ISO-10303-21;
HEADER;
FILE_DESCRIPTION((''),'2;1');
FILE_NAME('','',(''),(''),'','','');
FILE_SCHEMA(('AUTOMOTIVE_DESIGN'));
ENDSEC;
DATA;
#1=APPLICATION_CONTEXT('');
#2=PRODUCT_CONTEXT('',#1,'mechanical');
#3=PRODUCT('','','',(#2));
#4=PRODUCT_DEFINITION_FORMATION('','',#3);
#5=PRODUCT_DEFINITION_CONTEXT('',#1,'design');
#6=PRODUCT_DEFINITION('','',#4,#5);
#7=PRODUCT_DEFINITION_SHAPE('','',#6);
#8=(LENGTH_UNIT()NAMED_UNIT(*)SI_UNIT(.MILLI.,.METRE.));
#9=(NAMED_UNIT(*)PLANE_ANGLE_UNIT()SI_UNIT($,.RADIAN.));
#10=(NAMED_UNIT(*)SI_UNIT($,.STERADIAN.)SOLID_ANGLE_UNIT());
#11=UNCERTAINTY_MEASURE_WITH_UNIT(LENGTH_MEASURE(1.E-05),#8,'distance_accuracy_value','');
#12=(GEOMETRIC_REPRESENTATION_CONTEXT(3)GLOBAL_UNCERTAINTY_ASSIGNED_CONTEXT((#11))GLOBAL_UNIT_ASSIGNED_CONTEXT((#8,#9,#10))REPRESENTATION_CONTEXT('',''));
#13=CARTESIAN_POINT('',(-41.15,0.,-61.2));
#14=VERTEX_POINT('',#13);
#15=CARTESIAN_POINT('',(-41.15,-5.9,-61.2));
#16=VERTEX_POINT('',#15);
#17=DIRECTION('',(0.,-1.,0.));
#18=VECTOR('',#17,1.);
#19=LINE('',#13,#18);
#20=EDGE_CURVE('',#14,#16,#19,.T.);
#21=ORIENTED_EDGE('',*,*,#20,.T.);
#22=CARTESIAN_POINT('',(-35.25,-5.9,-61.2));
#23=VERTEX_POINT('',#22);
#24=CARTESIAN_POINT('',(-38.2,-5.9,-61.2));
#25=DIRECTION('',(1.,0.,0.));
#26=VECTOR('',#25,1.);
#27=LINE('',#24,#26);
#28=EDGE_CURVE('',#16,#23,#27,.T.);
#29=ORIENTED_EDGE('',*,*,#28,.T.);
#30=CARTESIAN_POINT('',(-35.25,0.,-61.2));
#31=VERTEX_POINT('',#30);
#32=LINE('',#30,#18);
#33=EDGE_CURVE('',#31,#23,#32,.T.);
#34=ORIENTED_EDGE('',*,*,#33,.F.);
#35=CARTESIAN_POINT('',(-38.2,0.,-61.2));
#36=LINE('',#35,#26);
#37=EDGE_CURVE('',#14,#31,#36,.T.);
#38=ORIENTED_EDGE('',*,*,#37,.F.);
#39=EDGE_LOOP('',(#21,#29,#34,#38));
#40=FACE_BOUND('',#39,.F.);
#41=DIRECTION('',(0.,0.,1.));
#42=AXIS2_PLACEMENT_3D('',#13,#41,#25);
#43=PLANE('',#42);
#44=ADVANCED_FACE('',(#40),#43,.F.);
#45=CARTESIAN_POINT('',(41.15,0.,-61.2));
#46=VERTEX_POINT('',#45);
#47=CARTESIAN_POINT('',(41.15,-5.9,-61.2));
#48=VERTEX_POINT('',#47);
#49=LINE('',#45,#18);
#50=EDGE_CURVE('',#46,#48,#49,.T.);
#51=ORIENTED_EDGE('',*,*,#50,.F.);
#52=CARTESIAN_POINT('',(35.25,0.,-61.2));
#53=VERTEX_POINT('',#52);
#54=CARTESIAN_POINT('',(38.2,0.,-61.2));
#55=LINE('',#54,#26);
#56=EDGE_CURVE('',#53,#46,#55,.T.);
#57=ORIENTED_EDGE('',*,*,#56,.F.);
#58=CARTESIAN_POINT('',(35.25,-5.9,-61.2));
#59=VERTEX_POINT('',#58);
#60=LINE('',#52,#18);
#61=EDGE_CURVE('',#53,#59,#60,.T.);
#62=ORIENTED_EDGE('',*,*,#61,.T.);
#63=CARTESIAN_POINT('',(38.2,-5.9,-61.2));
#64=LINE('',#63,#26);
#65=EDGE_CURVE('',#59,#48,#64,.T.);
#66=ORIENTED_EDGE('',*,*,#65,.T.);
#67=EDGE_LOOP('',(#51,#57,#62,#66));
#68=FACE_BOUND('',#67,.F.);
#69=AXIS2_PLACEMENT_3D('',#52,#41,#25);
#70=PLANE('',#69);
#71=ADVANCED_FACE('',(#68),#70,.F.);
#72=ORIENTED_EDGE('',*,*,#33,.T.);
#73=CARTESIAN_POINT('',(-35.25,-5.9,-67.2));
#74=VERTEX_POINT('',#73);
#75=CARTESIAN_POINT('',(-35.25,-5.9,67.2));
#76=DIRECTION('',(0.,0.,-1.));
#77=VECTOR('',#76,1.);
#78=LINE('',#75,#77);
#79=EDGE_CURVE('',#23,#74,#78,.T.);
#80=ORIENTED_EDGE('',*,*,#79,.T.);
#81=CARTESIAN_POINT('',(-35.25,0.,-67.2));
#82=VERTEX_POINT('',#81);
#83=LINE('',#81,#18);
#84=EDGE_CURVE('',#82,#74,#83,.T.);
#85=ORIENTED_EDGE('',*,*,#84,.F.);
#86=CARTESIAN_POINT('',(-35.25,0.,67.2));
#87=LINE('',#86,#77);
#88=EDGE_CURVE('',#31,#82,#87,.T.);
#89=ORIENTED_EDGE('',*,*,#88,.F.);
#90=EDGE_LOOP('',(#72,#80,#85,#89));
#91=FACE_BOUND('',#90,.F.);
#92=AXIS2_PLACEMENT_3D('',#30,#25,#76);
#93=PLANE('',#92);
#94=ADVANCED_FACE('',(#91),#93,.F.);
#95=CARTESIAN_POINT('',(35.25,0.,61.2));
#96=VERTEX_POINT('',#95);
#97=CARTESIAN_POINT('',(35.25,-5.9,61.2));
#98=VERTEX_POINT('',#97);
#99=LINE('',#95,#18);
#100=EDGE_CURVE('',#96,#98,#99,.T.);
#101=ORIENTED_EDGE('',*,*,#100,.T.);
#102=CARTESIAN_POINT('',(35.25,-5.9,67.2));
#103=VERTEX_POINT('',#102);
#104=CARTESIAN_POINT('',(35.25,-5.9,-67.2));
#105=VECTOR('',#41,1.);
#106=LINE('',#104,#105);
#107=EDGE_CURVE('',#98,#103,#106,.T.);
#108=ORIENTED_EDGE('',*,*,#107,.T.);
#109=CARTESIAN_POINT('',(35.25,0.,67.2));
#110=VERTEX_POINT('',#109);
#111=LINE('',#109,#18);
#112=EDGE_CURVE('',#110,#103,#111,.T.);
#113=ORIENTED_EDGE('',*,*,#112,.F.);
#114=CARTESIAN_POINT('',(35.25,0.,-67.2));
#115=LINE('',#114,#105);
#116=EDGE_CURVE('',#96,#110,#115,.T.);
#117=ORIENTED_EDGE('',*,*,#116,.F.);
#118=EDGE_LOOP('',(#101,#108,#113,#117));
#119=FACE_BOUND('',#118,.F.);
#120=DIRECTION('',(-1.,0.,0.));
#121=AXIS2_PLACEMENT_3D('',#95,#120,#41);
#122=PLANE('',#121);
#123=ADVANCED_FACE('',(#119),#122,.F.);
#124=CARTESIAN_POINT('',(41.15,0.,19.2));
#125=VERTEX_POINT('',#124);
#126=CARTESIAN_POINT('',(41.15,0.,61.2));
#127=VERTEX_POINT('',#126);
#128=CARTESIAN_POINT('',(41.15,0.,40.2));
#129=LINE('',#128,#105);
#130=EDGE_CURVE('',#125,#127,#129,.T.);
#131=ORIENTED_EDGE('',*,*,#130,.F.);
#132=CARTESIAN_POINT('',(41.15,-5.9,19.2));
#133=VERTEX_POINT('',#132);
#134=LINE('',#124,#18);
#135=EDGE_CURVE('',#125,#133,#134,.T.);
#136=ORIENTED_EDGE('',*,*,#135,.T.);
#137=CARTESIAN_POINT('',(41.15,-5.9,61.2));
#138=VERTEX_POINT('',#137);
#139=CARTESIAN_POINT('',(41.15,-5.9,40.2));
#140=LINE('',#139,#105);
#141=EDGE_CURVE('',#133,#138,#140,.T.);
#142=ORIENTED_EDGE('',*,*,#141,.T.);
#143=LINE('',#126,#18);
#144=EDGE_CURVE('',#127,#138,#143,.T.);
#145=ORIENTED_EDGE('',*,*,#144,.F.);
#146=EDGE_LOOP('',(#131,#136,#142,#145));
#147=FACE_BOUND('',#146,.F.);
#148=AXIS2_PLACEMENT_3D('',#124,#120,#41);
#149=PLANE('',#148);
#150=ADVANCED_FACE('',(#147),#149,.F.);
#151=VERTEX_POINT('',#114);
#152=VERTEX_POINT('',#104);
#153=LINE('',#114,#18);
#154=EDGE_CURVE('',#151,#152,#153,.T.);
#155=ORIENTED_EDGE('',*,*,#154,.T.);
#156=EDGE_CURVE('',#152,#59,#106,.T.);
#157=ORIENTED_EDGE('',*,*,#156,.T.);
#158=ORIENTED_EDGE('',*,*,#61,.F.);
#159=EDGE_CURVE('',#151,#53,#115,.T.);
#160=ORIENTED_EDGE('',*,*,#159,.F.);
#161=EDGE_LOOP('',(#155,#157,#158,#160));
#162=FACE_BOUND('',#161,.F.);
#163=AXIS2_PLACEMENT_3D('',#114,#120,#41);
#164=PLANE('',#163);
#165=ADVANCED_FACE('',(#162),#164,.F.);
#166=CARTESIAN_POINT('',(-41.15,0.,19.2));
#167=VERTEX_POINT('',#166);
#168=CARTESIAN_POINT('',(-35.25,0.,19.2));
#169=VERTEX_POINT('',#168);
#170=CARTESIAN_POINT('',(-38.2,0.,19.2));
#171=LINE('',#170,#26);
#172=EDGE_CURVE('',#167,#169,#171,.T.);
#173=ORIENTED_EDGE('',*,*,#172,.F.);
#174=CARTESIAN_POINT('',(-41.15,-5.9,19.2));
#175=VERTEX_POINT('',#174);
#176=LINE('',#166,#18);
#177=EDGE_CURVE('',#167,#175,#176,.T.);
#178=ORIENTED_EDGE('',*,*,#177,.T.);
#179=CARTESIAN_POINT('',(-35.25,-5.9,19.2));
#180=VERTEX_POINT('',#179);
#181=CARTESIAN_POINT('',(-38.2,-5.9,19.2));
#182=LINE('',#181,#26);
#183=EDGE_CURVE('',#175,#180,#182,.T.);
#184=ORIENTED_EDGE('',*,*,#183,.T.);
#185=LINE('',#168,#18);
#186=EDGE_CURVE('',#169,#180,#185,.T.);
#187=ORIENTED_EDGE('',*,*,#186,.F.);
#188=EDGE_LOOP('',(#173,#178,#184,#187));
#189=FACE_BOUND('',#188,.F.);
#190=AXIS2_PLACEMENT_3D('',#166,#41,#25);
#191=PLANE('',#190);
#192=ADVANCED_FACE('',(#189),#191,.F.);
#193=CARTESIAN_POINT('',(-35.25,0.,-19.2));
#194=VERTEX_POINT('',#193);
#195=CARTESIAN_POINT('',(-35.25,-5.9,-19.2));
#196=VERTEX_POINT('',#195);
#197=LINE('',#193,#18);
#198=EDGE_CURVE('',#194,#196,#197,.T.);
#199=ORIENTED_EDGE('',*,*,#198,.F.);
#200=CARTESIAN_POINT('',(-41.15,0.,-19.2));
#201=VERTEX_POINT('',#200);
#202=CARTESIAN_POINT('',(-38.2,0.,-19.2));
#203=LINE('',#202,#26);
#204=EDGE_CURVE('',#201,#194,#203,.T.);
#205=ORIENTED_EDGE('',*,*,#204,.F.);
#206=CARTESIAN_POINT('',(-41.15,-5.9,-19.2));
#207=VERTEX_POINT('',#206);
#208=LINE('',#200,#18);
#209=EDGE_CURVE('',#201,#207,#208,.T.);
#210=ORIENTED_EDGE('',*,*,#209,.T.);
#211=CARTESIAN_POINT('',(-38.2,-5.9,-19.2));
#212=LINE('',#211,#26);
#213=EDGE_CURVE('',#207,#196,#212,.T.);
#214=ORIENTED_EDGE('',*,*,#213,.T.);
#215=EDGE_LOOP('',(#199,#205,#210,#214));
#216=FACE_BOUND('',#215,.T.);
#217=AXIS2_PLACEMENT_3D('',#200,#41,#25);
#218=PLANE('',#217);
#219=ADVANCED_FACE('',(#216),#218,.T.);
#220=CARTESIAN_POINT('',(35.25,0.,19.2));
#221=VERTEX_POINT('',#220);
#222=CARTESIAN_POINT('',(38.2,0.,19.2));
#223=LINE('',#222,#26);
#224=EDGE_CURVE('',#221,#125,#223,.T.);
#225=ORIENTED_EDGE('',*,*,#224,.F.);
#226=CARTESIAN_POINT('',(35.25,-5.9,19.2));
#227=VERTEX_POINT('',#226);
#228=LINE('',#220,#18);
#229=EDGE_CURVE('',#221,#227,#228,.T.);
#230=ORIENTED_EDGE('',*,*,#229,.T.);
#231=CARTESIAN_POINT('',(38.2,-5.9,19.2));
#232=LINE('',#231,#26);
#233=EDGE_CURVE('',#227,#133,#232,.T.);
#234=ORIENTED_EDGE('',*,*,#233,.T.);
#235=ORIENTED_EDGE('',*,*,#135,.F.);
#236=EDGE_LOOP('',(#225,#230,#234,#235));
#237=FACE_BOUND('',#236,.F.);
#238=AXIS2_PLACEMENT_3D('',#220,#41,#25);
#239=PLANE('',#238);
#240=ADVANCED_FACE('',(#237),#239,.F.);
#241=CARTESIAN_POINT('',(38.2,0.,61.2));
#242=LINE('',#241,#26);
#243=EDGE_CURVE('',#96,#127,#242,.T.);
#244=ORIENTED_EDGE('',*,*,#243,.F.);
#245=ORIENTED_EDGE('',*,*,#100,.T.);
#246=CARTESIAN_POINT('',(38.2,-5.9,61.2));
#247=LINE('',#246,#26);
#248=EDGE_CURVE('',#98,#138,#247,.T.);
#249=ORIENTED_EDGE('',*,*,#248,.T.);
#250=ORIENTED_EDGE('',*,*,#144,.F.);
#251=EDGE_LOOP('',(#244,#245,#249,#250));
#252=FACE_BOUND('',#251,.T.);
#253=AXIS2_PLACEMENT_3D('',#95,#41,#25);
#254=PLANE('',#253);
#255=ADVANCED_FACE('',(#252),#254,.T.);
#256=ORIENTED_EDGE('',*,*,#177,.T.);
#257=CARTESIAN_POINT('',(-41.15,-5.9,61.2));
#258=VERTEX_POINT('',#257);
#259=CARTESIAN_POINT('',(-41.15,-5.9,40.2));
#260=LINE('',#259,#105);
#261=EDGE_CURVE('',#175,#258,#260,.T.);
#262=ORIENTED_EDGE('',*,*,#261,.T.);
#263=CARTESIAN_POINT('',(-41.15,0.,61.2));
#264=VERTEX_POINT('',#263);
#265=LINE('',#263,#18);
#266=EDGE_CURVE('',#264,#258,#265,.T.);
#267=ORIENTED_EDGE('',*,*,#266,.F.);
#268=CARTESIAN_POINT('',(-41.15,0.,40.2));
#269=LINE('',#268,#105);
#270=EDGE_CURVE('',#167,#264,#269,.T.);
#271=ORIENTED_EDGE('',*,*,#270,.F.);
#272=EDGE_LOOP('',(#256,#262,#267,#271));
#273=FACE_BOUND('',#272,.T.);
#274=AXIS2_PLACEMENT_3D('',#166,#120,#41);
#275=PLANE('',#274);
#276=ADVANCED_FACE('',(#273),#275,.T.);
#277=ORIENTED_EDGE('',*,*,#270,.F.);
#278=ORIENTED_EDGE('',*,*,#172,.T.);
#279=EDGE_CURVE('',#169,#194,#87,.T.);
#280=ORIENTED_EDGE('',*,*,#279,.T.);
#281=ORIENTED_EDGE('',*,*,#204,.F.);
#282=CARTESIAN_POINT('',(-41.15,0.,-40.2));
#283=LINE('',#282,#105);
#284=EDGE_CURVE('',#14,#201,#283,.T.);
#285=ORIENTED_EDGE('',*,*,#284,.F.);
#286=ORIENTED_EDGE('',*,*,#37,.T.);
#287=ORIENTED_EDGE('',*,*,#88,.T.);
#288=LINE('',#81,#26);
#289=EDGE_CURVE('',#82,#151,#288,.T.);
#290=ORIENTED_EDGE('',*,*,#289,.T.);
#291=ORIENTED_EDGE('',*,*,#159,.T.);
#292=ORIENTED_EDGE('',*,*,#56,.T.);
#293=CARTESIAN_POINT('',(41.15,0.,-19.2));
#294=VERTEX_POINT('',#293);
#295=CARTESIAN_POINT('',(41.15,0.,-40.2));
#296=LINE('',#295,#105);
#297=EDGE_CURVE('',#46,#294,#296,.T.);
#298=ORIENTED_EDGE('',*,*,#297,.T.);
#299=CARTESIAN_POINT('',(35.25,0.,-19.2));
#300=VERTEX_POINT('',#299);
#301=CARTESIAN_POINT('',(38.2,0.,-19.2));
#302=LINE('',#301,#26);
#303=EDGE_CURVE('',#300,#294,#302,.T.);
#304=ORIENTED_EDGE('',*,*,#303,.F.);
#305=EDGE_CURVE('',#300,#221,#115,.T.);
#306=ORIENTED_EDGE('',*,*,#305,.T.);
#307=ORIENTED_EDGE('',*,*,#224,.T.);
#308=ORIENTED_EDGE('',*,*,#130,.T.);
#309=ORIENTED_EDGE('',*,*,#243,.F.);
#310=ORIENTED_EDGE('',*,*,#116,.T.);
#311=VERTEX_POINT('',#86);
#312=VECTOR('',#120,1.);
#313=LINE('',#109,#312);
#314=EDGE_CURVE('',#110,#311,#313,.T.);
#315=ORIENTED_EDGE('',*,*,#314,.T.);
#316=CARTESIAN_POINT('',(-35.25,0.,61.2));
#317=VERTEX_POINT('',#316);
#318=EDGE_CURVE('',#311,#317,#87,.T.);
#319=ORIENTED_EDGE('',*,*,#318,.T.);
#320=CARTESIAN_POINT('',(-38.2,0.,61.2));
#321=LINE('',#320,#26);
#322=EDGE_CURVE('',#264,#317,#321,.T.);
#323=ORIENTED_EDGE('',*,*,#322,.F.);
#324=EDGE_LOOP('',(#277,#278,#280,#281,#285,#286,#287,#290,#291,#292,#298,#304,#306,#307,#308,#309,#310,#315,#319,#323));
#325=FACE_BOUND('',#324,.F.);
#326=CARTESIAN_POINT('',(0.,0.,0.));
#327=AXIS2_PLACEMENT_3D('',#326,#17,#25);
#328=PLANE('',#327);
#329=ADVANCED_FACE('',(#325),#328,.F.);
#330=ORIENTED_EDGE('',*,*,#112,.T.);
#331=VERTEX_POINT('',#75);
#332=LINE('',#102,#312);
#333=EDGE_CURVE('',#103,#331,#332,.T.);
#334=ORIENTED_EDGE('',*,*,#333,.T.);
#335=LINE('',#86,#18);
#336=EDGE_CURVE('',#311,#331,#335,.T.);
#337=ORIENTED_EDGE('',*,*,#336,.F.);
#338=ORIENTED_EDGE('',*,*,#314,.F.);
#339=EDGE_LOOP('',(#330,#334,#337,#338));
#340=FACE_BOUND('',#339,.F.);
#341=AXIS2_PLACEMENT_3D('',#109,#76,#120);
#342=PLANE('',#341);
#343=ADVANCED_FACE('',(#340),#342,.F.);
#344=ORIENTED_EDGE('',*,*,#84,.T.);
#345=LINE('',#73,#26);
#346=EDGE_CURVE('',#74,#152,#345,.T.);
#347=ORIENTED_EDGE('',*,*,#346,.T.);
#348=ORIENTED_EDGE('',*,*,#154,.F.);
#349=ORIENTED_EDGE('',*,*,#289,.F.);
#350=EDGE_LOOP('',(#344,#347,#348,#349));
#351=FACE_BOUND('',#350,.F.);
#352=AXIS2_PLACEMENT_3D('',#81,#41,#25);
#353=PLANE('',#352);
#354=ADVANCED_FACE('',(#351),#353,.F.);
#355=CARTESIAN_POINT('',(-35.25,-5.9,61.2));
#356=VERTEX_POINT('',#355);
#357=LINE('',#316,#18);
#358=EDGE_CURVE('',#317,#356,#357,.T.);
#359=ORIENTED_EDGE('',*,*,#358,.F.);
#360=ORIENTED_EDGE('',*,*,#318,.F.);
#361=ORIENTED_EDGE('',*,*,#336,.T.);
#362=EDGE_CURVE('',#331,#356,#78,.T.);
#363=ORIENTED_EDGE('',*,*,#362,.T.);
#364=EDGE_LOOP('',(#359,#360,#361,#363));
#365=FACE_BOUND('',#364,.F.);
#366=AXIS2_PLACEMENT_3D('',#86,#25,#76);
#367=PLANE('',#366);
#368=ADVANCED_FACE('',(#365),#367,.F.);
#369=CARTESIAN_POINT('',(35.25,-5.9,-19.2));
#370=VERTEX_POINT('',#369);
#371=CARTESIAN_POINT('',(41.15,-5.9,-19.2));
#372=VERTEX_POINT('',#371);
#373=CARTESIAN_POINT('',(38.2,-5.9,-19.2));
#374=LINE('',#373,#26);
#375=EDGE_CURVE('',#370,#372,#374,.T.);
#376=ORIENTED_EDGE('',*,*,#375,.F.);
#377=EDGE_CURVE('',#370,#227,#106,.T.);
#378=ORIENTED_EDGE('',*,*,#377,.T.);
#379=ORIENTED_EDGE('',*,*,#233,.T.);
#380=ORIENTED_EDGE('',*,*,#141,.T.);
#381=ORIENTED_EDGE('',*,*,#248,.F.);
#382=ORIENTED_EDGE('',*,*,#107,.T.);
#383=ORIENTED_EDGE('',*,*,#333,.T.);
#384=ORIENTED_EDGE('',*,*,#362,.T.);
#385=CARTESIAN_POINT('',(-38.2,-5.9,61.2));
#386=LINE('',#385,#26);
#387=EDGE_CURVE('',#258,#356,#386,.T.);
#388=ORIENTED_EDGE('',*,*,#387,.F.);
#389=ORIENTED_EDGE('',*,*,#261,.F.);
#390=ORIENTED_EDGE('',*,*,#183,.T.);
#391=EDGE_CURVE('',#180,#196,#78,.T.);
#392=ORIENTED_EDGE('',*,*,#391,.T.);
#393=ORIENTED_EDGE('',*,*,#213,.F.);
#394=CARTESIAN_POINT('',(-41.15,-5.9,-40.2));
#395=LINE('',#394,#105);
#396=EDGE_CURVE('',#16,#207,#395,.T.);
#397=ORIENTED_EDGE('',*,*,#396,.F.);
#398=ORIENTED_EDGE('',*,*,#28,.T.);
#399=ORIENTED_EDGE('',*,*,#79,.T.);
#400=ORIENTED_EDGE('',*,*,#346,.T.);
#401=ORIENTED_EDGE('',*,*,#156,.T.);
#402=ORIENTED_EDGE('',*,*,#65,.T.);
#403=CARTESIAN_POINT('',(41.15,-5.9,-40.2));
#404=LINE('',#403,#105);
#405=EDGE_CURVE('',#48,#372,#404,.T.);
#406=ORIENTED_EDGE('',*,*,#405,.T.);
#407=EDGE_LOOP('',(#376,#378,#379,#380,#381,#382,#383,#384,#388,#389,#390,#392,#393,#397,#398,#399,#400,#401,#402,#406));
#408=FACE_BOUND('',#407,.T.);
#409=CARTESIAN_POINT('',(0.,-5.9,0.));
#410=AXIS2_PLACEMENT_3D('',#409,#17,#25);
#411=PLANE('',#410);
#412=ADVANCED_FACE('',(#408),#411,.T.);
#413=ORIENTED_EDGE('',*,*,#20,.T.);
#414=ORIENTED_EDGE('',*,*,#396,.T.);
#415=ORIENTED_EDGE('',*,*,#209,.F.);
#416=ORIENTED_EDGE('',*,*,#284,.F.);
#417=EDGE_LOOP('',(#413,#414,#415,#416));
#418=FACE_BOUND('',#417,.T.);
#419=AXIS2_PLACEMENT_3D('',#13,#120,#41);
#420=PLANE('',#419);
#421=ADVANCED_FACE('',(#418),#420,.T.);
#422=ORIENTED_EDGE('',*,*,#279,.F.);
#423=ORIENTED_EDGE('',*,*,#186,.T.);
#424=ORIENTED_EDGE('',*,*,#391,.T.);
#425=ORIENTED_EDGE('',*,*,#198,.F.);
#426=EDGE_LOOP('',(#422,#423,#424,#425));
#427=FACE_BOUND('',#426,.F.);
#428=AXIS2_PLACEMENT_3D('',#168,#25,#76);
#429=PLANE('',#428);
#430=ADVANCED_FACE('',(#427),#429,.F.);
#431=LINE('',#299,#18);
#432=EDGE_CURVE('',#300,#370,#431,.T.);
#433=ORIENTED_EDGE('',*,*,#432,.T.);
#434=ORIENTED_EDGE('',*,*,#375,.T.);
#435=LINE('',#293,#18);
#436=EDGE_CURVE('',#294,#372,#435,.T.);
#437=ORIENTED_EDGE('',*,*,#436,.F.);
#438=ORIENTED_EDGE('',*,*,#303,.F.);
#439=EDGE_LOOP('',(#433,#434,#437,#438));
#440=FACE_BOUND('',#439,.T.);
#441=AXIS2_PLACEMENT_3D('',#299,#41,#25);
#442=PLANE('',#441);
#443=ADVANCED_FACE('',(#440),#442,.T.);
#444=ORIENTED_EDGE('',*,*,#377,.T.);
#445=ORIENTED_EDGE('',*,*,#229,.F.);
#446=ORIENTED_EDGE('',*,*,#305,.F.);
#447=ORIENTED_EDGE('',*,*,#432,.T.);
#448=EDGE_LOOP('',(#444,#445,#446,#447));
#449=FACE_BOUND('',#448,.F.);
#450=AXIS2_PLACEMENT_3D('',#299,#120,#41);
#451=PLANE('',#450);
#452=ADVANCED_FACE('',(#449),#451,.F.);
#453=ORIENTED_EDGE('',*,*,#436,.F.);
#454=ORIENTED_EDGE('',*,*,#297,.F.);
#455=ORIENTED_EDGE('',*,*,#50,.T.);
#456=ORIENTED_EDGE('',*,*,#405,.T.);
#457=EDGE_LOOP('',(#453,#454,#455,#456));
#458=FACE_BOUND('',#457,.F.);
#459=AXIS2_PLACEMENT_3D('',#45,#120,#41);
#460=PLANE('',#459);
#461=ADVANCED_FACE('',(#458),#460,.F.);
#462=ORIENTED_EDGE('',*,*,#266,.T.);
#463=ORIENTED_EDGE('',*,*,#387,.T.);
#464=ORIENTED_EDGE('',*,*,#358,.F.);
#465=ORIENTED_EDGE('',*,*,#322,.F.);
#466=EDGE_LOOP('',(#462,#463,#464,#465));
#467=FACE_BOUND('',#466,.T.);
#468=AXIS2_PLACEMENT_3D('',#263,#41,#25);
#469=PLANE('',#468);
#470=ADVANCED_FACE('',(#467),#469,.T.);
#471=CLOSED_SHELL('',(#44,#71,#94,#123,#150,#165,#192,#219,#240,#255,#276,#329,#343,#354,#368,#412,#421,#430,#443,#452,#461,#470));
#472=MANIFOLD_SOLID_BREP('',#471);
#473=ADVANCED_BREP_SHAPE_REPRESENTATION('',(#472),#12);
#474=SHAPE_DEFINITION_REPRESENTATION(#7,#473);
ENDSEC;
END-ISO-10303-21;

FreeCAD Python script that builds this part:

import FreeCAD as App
import Part
import Sketcher
from FreeCAD import Vector
Q = App.Units.Quantity


def add_polygon(sketch, points):
    """Adds a closed chain of lines whose ends are joined by coincident constraints."""
    first, n = sketch.GeometryCount, len(points)
    for a, b in zip(points, points[1:] + points[:1]):
        sketch.addGeometry(Part.LineSegment(App.Vector(*a, 0), App.Vector(*b, 0)), False)
    for i in range(n):
        sketch.addConstraint(Sketcher.Constraint("Coincident", first + i, 2, first + (i + 1) % n, 1))

doc = App.newDocument("Part")
params = doc.addObject("Spreadsheet::Sheet", "Params")
for row, (alias, value) in enumerate([
    ("sketch1_height", "6 mm"),
    ("sketch1_height2", "42 mm"),
    ("sketch1_width", "70.5 mm"),
    ("sketch1_width2", "5.9 mm"),
    ("sketch1_height3", "38.4 mm"),
    ("pad1_length", "5.9 mm"),
], start=1):
    params.set(f"A{row}", alias)
    params.set(f"B{row}", "=" + value)
    params.setAlias(f"B{row}", alias)

body = doc.addObject("PartDesign::Body", "Body")

sketch1 = doc.addObject("Sketcher::SketchObject", "Sketch")
body.addObject(sketch1)
sketch1.AttachmentSupport = (doc.XZ_Plane, [""])
sketch1.MapMode = "FlatFace"
add_polygon(sketch1, [(35, 67), (-35, 67), (-35, 61), (-41, 61), (-41, 19), (-35, 19), (-35, -19), (-41, -19), (-41, -61), (-35, -61), (-35, -67), (35, -67), (35, -61), (41, -61), (41, -19), (35, -19), (35, 19), (41, 19), (41, 61), (35, 61)])
sketch1.addConstraint([
    Sketcher.Constraint("Horizontal", 0),
    Sketcher.Constraint("Vertical", 1),
    Sketcher.Constraint("Horizontal", 2),
    Sketcher.Constraint("Vertical", 3),
    Sketcher.Constraint("Horizontal", 4),
    Sketcher.Constraint("Vertical", 5),
    Sketcher.Constraint("Horizontal", 6),
    Sketcher.Constraint("Vertical", 7),
    Sketcher.Constraint("Horizontal", 8),
    Sketcher.Constraint("Vertical", 9),
    Sketcher.Constraint("Horizontal", 10),
    Sketcher.Constraint("Vertical", 11),
    Sketcher.Constraint("Horizontal", 12),
    Sketcher.Constraint("Vertical", 13),
    Sketcher.Constraint("Horizontal", 14),
    Sketcher.Constraint("Vertical", 15),
    Sketcher.Constraint("Horizontal", 16),
    Sketcher.Constraint("Vertical", 17),
    Sketcher.Constraint("Horizontal", 18),
    Sketcher.Constraint("Vertical", 19),
    Sketcher.Constraint("Symmetric", 0, 2, 10, 2, -1, 1),
    Sketcher.Constraint("Symmetric", 2, 2, 12, 2, -1, 1),
    Sketcher.Constraint("Symmetric", 4, 2, 14, 2, -1, 1),
    Sketcher.Constraint("Symmetric", 6, 2, 16, 2, -1, 1),
    Sketcher.Constraint("Symmetric", 8, 2, 18, 2, -1, 1),
    Sketcher.Constraint("Symmetric", 8, 2, 11, 2, -2),
    Sketcher.Constraint("Symmetric", 6, 2, 13, 2, -2),
    Sketcher.Constraint("Vertical", 1, 2, 4, 2),
    Sketcher.Constraint("DistanceY", 1, 2, 1, 1, Q("6 mm")),
    Sketcher.Constraint("DistanceY", 3, 2, 3, 1, Q("42 mm")),
    Sketcher.Constraint("DistanceX", 0, 2, 0, 1, Q("70.5 mm")),
    Sketcher.Constraint("DistanceX", 2, 2, 2, 1, Q("5.9 mm")),
    Sketcher.Constraint("DistanceY", 5, 2, 5, 1, Q("38.4 mm")),
])
sketch1.setExpression("Constraints[48]", "Params.sketch1_height")
sketch1.setExpression("Constraints[49]", "Params.sketch1_height2")
sketch1.setExpression("Constraints[50]", "Params.sketch1_width")
sketch1.setExpression("Constraints[51]", "Params.sketch1_width2")
sketch1.setExpression("Constraints[52]", "Params.sketch1_height3")
pad1 = doc.addObject("PartDesign::Pad", "Pad")
body.addObject(pad1)
pad1.Profile = sketch1
pad1.setExpression("Length", "Params.pad1_length")

doc.recompute()
